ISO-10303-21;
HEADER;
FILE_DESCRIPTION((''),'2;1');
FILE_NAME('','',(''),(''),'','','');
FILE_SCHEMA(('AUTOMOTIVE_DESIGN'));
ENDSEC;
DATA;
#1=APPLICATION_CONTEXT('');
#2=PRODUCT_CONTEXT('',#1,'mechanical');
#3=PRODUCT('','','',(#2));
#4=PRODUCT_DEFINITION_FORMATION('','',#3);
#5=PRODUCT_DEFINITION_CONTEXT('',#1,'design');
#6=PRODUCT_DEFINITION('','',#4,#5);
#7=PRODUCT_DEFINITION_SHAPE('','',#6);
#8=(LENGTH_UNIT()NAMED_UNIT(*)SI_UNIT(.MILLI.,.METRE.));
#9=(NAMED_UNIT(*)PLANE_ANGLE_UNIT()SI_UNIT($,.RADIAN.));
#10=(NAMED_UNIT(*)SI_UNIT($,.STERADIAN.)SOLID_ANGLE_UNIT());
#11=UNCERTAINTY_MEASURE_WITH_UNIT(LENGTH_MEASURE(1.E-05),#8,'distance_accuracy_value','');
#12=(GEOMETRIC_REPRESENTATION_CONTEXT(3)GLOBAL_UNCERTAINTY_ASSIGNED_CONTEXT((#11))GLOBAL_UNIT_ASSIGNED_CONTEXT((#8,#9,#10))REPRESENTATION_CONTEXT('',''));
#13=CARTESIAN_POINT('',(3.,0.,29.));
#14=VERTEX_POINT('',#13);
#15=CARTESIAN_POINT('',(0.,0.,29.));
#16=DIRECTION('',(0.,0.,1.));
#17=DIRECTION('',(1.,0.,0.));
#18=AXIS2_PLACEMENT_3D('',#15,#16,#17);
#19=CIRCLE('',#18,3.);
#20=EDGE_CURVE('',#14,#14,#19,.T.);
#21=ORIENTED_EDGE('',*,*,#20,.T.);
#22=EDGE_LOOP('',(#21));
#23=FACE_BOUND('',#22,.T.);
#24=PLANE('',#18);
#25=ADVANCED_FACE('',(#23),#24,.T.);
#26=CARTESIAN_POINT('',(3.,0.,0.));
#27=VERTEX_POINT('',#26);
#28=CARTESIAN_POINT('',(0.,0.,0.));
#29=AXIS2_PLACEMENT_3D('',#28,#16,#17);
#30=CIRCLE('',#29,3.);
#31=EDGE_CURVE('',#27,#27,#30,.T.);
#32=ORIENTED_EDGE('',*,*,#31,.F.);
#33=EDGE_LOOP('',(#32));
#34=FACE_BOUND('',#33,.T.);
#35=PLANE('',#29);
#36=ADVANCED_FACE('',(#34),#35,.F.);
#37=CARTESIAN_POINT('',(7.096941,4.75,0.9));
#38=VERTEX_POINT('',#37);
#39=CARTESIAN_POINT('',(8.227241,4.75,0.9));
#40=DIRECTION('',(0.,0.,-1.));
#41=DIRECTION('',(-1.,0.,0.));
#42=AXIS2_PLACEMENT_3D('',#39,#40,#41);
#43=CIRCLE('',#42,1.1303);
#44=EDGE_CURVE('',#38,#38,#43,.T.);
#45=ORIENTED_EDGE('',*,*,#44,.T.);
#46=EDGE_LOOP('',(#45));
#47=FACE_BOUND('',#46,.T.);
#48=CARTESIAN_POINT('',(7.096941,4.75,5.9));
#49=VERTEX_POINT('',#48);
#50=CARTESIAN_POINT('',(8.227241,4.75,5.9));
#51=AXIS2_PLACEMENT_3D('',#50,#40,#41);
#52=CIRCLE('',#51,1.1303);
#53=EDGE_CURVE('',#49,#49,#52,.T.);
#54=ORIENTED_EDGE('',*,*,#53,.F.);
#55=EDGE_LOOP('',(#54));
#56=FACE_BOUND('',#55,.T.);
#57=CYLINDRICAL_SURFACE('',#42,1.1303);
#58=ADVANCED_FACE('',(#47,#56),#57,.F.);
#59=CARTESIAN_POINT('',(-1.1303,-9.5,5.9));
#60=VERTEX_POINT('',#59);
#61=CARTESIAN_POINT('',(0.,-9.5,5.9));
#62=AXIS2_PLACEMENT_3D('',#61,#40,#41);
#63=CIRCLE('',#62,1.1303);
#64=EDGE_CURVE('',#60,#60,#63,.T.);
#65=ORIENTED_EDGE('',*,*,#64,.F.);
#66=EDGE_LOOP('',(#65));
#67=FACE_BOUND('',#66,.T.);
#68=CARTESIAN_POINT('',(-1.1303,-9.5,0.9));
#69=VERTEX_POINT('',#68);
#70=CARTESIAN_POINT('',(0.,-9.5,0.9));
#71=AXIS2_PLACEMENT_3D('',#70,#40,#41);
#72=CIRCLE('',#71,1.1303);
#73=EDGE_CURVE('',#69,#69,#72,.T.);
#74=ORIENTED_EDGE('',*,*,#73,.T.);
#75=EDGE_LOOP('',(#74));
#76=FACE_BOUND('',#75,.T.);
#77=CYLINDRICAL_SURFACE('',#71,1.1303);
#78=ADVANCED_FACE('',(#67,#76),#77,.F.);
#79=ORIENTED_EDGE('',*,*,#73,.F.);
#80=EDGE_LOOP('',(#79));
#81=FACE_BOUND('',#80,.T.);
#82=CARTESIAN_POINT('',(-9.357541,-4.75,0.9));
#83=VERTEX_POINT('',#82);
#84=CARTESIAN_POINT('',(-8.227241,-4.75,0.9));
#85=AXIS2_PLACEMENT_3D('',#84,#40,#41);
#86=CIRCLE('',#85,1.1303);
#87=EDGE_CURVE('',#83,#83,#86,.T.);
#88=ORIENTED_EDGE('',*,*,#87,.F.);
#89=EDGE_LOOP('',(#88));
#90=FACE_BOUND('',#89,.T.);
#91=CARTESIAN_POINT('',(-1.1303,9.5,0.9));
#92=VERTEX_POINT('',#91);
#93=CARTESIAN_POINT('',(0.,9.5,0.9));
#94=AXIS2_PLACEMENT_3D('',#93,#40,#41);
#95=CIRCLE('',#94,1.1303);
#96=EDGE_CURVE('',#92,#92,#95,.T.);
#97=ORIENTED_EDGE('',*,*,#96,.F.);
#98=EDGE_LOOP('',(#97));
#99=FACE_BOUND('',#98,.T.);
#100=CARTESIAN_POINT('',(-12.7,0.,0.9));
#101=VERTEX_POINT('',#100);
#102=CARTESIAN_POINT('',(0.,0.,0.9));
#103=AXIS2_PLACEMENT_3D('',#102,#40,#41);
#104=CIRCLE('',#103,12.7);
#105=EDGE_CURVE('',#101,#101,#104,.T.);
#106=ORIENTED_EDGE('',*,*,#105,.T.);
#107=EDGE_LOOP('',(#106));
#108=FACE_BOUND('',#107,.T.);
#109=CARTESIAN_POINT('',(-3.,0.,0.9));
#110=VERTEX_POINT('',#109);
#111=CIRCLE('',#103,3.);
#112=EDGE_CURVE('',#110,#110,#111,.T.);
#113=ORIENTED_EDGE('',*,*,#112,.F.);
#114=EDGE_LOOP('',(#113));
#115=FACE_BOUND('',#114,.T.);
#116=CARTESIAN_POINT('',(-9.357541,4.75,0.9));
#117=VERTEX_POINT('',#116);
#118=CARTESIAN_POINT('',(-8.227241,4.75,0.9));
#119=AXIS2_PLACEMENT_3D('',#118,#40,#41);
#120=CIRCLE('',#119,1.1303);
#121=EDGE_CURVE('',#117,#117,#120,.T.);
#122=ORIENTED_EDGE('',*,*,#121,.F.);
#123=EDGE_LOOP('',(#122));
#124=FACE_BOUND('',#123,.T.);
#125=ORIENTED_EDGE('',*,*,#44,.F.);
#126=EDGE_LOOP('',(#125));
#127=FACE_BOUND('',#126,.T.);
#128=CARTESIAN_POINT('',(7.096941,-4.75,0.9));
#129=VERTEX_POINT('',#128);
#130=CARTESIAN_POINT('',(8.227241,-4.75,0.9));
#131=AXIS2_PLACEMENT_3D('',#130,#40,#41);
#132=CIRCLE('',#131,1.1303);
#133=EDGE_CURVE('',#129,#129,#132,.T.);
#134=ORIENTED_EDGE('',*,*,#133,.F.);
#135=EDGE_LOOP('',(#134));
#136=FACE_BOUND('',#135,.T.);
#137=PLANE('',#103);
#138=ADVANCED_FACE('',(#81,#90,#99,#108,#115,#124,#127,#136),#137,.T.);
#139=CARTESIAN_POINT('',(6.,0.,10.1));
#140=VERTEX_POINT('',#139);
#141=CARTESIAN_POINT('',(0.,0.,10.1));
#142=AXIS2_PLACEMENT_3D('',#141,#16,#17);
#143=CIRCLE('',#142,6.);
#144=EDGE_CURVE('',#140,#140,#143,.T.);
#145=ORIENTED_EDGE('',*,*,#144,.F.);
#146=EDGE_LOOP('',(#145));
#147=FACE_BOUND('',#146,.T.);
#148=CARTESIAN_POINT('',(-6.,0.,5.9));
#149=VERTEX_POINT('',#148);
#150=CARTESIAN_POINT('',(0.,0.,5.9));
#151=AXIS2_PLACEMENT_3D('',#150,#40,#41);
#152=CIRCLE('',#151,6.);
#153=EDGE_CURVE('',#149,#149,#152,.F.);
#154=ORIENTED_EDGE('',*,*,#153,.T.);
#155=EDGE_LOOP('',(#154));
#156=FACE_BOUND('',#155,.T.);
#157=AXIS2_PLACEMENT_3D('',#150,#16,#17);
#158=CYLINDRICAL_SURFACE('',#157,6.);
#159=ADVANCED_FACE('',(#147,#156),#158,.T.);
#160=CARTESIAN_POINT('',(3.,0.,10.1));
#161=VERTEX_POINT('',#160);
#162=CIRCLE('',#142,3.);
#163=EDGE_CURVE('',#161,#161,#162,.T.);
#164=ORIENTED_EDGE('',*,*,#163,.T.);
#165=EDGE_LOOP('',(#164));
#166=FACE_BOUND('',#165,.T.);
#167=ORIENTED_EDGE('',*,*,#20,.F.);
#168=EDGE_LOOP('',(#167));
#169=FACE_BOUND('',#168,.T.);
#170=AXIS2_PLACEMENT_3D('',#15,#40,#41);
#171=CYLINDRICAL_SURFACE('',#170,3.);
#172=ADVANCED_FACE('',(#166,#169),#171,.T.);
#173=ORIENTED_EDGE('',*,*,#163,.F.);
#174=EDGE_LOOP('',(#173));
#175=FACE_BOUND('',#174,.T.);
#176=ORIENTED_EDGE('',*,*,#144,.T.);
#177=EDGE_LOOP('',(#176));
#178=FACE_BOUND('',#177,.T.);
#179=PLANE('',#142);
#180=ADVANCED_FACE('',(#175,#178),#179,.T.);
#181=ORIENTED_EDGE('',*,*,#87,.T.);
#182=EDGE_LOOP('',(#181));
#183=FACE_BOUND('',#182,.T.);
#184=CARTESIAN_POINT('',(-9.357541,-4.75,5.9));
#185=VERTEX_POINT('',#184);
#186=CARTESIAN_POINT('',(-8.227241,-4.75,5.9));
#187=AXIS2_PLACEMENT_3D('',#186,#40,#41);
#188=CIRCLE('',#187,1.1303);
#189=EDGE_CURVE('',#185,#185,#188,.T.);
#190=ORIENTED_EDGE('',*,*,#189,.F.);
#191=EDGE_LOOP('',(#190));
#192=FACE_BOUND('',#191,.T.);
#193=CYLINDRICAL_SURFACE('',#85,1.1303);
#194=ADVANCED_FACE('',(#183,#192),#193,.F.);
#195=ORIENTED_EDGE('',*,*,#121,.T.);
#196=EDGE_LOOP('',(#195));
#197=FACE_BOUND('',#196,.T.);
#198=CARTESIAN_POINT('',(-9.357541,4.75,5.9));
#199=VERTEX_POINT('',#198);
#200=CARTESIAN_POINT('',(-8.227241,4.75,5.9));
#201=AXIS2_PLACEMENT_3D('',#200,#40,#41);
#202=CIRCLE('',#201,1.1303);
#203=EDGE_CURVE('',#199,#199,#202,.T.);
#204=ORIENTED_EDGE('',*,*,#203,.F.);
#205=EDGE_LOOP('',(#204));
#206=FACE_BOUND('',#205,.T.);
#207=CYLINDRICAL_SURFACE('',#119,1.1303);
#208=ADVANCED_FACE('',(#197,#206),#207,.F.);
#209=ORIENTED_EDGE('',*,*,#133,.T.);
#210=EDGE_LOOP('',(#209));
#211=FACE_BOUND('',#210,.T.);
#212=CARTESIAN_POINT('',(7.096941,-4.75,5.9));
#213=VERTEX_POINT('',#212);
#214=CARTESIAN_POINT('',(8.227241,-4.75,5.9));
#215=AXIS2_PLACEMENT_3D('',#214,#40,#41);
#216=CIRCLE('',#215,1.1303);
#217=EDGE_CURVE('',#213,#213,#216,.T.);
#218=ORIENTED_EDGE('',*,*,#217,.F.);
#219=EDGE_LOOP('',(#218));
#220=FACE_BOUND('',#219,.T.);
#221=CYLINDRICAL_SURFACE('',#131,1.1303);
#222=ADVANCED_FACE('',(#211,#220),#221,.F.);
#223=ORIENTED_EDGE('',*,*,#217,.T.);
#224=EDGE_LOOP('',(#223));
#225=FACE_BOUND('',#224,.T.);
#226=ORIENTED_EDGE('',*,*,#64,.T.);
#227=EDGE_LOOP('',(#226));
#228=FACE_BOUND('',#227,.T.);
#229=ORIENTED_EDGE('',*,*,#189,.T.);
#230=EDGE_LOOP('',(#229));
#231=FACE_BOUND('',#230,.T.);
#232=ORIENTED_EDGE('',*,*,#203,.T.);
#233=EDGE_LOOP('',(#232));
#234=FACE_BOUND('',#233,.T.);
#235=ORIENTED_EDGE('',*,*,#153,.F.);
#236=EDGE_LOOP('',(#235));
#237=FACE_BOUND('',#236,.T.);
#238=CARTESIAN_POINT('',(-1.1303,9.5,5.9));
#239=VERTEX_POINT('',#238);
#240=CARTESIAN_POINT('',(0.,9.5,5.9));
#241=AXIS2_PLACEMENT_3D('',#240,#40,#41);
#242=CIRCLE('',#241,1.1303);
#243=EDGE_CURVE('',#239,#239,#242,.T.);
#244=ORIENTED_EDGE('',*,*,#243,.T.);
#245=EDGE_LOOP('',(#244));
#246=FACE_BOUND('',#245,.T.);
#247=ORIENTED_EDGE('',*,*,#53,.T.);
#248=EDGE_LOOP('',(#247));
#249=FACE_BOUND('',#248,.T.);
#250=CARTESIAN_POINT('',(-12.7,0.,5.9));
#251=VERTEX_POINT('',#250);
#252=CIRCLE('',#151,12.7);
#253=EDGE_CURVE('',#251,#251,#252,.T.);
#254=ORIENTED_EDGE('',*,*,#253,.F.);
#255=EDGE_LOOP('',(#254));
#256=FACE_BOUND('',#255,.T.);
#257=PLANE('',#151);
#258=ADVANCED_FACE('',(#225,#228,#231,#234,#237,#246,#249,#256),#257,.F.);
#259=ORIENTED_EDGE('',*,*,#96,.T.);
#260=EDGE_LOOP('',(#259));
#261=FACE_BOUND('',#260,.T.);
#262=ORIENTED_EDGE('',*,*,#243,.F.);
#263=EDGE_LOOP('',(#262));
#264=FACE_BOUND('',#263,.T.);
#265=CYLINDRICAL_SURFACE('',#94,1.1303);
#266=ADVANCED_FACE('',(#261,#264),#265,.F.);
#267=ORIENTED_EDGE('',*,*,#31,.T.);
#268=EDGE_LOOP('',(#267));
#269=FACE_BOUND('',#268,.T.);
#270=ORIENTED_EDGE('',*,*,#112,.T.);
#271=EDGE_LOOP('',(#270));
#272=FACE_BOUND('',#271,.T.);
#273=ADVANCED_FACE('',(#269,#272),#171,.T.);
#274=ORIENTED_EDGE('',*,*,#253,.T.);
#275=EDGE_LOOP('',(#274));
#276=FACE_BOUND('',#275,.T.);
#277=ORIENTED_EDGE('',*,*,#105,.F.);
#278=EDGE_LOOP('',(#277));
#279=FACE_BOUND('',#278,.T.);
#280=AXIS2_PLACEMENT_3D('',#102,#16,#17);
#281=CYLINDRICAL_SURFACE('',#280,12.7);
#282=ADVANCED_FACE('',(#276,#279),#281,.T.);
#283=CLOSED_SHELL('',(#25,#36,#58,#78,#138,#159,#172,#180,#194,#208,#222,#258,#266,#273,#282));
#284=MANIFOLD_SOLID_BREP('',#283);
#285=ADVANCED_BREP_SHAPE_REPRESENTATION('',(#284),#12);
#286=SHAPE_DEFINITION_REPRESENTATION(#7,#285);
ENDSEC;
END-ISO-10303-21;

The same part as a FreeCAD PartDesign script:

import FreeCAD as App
import Part
import Sketcher
from FreeCAD import Vector
Q = App.Units.Quantity

doc = App.newDocument("Part")
body = doc.addObject("PartDesign::Body", "Body")

sketch1 = body.newObject("Sketcher::SketchObject", "Sketch")
sketch1.AttachmentSupport = (doc.getObject("XY_Plane"), [""])
sketch1.MapMode = "FlatFace"
sketch1.addGeometry(Part.Circle(Vector(0, 0, 0), Vector(0, 0, 1), 3), False)
sketch1.addConstraint([
    Sketcher.Constraint("Coincident", 0, 3, -1, 1),
    Sketcher.Constraint("Diameter", 0, Q("6 mm")),
])
pad1 = body.newObject("PartDesign::Pad", "Pad")
pad1.Profile = sketch1
pad1.Length = 29

sketch2 = body.newObject("Sketcher::SketchObject", "Sketch001")
sketch2.AttachmentSupport = (doc.getObject("XY_Plane"), [""])
sketch2.MapMode = "FlatFace"
sketch2.AttachmentOffset = App.Placement(Vector(0, 0, 8), App.Rotation())
sketch2.addGeometry(Part.Circle(Vector(0, 0, 0), Vector(0, 0, 1), 6), False)
sketch2.addConstraint([
    Sketcher.Constraint("Coincident", 0, 3, -1, 1),
    Sketcher.Constraint("Diameter", 0, Q("12 mm")),
])
pad2 = body.newObject("PartDesign::Pad", "Pad001")
pad2.Profile = sketch2
pad2.Length = 2.1
pad2.Reversed = True

sketch3 = body.newObject("Sketcher::SketchObject", "Sketch002")
sketch3.AttachmentSupport = (doc.getObject("XY_Plane"), [""])
sketch3.MapMode = "FlatFace"
sketch3.AttachmentOffset = App.Placement(Vector(0, 0, 5.9), App.Rotation())
sketch3.addGeometry(Part.Circle(Vector(0, 0, 0), Vector(0, 0, 1), 12.7), False)
sketch3.addConstraint([
    Sketcher.Constraint("Coincident", 0, 3, -1, 1),
    Sketcher.Constraint("Diameter", 0, Q("25.4 mm")),
])
pad3 = body.newObject("PartDesign::Pad", "Pad002")
pad3.Profile = sketch3
pad3.Length = 5
pad3.Reversed = True

sketch4 = body.newObject("Sketcher::SketchObject", "Sketch003")
sketch4.AttachmentSupport = (doc.getObject("XY_Plane"), [""])
sketch4.MapMode = "FlatFace"
sketch4.AttachmentOffset = App.Placement(Vector(0, 0, 8), App.Rotation())
sketch4.addGeometry(Part.Circle(Vector(0, 0, 0), Vector(0, 0, 1), 6), False)
sketch4.addConstraint([
    Sketcher.Constraint("Coincident", 0, 3, -1, 1),
    Sketcher.Constraint("Diameter", 0, Q("12 mm")),
])
pad4 = body.newObject("PartDesign::Pad", "Pad003")
pad4.Profile = sketch4
pad4.Length = 2.1

sketch5 = body.newObject("Sketcher::SketchObject", "Sketch004")
sketch5.AttachmentSupport = (doc.getObject("XY_Plane"), [""])
sketch5.MapMode = "FlatFace"
sketch5.AttachmentOffset = App.Placement(Vector(0, 0, 0.9), App.Rotation())
sketch5.addGeometry([
    Part.Circle(Vector(-8.227241, 4.75, 0), Vector(0, 0, 1), 1.1303),
    Part.Circle(Vector(-8.227241, -4.75, 0), Vector(0, 0, 1), 1.1303),
    Part.Circle(Vector(0, -9.5, 0), Vector(0, 0, 1), 1.1303),
    Part.Circle(Vector(8.227241, -4.75, 0), Vector(0, 0, 1), 1.1303),
    Part.Circle(Vector(8.227241, 4.75, 0), Vector(0, 0, 1), 1.1303),
    Part.Circle(Vector(0, 9.5, 0), Vector(0, 0, 1), 1.1303),
], False)
sketch5.addConstraint([
    Sketcher.Constraint("Equal", 0, 1),
    Sketcher.Constraint("Equal", 1, 2),
    Sketcher.Constraint("Equal", 2, 3),
    Sketcher.Constraint("Equal", 3, 4),
    Sketcher.Constraint("Equal", 4, 5),
    Sketcher.Constraint("Symmetric", 0, 3, 3, 3, -1, 1),
    Sketcher.Constraint("Symmetric", 1, 3, 4, 3, -1, 1),
    Sketcher.Constraint("Symmetric", 2, 3, 5, 3, -1, 1),
    Sketcher.Constraint("Symmetric", 1, 3, 3, 3, -2),
    Sketcher.Constraint("PointOnObject", 2, 3, -2),
    Sketcher.Constraint("DistanceY", 2, 3, 5, 3, Q("19 mm")),
    Sketcher.Constraint("Diameter", 0, Q("2.2606 mm")),
    Sketcher.Constraint("DistanceY", 1, 3, 0, 3, Q("9.5 mm")),
    Sketcher.Constraint("DistanceX", 0, 3, -1, 1, Q("8.227241 mm")),
])
doc.recompute()
hole = body.newObject("PartDesign::Hole", "Hole")
hole.Profile = sketch5
hole.ThreadType = "None"
hole.Diameter = 2.2606
hole.DepthType = "Dimension"
hole.Depth = 7.6
hole.DrillPoint = "Angled"
hole.DrillPointAngle = 118
hole.Reversed = True

doc.recompute()
